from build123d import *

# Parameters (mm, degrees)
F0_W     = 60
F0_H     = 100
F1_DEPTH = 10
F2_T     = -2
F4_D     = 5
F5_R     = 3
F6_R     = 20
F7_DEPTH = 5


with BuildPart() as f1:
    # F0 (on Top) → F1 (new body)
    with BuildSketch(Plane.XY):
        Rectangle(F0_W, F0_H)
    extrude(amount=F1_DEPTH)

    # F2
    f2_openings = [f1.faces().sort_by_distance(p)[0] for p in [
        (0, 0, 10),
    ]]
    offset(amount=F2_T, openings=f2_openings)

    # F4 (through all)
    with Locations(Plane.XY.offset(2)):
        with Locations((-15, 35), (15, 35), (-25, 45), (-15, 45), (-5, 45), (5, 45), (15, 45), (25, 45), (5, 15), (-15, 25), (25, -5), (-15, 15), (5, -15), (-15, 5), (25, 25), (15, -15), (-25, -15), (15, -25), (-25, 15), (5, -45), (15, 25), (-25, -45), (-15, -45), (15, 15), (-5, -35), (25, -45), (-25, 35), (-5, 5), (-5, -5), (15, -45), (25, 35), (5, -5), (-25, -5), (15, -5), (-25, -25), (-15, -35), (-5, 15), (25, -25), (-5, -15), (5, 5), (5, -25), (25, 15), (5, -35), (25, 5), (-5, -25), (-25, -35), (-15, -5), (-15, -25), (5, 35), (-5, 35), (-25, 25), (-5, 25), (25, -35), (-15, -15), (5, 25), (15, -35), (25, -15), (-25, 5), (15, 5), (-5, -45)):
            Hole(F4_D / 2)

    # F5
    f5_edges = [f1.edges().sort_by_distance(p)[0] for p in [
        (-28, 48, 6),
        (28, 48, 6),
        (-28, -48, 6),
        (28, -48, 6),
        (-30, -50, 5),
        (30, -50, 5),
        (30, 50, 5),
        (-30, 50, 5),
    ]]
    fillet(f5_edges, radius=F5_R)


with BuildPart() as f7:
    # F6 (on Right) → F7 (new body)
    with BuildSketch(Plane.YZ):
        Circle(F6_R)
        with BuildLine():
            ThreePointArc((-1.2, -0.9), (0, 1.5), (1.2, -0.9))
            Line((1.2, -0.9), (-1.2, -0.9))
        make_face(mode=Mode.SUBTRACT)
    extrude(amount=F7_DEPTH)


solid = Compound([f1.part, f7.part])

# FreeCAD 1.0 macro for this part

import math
import FreeCAD as App
import Part
import Sketcher
from FreeCAD import Vector
Q = App.Units.Quantity


def edges_at(feature, points):
    """Names of the edges that pass closest to the given points."""
    edges = feature.Shape.Edges
    near = lambda p: min(range(len(edges)), key=lambda i: edges[i].distToShape(Part.Vertex(*p))[0])
    return sorted({f"Edge{near(p) + 1}" for p in points})


def faces_at(feature, points):
    """Names of the faces that lie closest to the given points."""
    faces = feature.Shape.Faces
    near = lambda p: min(range(len(faces)), key=lambda i: faces[i].distToShape(Part.Vertex(*p))[0])
    return sorted({f"Face{near(p) + 1}" for p in points})

doc = App.newDocument("Part")
body = doc.addObject("PartDesign::Body", "Body")

sketch1 = doc.addObject("Sketcher::SketchObject", "Sketch")
body.addObject(sketch1)
sketch1.AttachmentSupport = (doc.XY_Plane, [""])
sketch1.MapMode = "FlatFace"
sketch1.addGeometry([
    Part.LineSegment(Vector(-30, 50, 0), Vector(-30, -50, 0)),
    Part.LineSegment(Vector(-30, -50, 0), Vector(30, -50, 0)),
    Part.LineSegment(Vector(30, -50, 0), Vector(30, 50, 0)),
    Part.LineSegment(Vector(30, 50, 0), Vector(-30, 50, 0)),
], False)
sketch1.addConstraint([
    Sketcher.Constraint("Coincident", 0, 2, 1, 1),
    Sketcher.Constraint("Coincident", 1, 2, 2, 1),
    Sketcher.Constraint("Coincident", 2, 2, 3, 1),
    Sketcher.Constraint("Coincident", 3, 2, 0, 1),
    Sketcher.Constraint("Vertical", 0),
    Sketcher.Constraint("Horizontal", 1),
    Sketcher.Constraint("Vertical", 2),
    Sketcher.Constraint("Horizontal", 3),
    Sketcher.Constraint("Symmetric", 0, 2, 2, 2, -1, 1),
    Sketcher.Constraint("DistanceX", 1, 1, 1, 2, Q("60 mm")),
    Sketcher.Constraint("DistanceY", 0, 2, 0, 1, Q("100 mm")),
])
pad1 = doc.addObject("PartDesign::Pad", "Pad")
body.addObject(pad1)
pad1.Profile = sketch1
pad1.Length = 10
doc.recompute()

thickness = doc.addObject("PartDesign::Thickness", "Thickness")
body.addObject(thickness)
thickness.Base = (pad1, faces_at(pad1, [(0, 0, 10)]))
thickness.Value = 2
thickness.Reversed = True
thickness.Join = "Arc"

sketch2 = doc.addObject("Sketcher::SketchObject", "Sketch001")
body.addObject(sketch2)
sketch2.AttachmentSupport = (doc.XY_Plane, [""])
sketch2.MapMode = "FlatFace"
sketch2.AttachmentOffset = App.Placement(Vector(0, 0, 2), App.Rotation())
sketch2.addGeometry([
    Part.Circle(Vector(-15, 35, 0), Vector(0, 0, 1), 2.5),
    Part.Circle(Vector(15, 35, 0), Vector(0, 0, 1), 2.5),
    Part.Circle(Vector(-25, 45, 0), Vector(0, 0, 1), 2.5),
    Part.Circle(Vector(-15, 45, 0), Vector(0, 0, 1), 2.5),
    Part.Circle(Vector(-5, 45, 0), Vector(0, 0, 1), 2.5),
    Part.Circle(Vector(5, 45, 0), Vector(0, 0, 1), 2.5),
    Part.Circle(Vector(15, 45, 0), Vector(0, 0, 1), 2.5),
    Part.Circle(Vector(25, 45, 0), Vector(0, 0, 1), 2.5),
    Part.Circle(Vector(5, 15, 0), Vector(0, 0, 1), 2.5),
    Part.Circle(Vector(-15, 25, 0), Vector(0, 0, 1), 2.5),
    Part.Circle(Vector(25, -5, 0), Vector(0, 0, 1), 2.5),
    Part.Circle(Vector(-15, 15, 0), Vector(0, 0, 1), 2.5),
    Part.Circle(Vector(5, -15, 0), Vector(0, 0, 1), 2.5),
    Part.Circle(Vector(-15, 5, 0), Vector(0, 0, 1), 2.5),
    Part.Circle(Vector(25, 25, 0), Vector(0, 0, 1), 2.5),
    Part.Circle(Vector(15, -15, 0), Vector(0, 0, 1), 2.5),
    Part.Circle(Vector(-25, -15, 0), Vector(0, 0, 1), 2.5),
    Part.Circle(Vector(15, -25, 0), Vector(0, 0, 1), 2.5),
    Part.Circle(Vector(-25, 15, 0), Vector(0, 0, 1), 2.5),
    Part.Circle(Vector(5, -45, 0), Vector(0, 0, 1), 2.5),
    Part.Circle(Vector(15, 25, 0), Vector(0, 0, 1), 2.5),
    Part.Circle(Vector(-25, -45, 0), Vector(0, 0, 1), 2.5),
    Part.Circle(Vector(-15, -45, 0), Vector(0, 0, 1), 2.5),
    Part.Circle(Vector(15, 15, 0), Vector(0, 0, 1), 2.5),
    Part.Circle(Vector(-5, -35, 0), Vector(0, 0, 1), 2.5),
    Part.Circle(Vector(25, -45, 0), Vector(0, 0, 1), 2.5),
    Part.Circle(Vector(-25, 35, 0), Vector(0, 0, 1), 2.5),
    Part.Circle(Vector(-5, 5, 0), Vector(0, 0, 1), 2.5),
    Part.Circle(Vector(-5, -5, 0), Vector(0, 0, 1), 2.5),
    Part.Circle(Vector(15, -45, 0), Vector(0, 0, 1), 2.5),
    Part.Circle(Vector(25, 35, 0), Vector(0, 0, 1), 2.5),
    Part.Circle(Vector(5, -5, 0), Vector(0, 0, 1), 2.5),
    Part.Circle(Vector(-25, -5, 0), Vector(0, 0, 1), 2.5),
    Part.Circle(Vector(15, -5, 0), Vector(0, 0, 1), 2.5),
    Part.Circle(Vector(-25, -25, 0), Vector(0, 0, 1), 2.5),
    Part.Circle(Vector(-15, -35, 0), Vector(0, 0, 1), 2.5),
    Part.Circle(Vector(-5, 15, 0), Vector(0, 0, 1), 2.5),
    Part.Circle(Vector(25, -25, 0), Vector(0, 0, 1), 2.5),
    Part.Circle(Vector(-5, -15, 0), Vector(0, 0, 1), 2.5),
    Part.Circle(Vector(5, 5, 0), Vector(0, 0, 1), 2.5),
    Part.Circle(Vector(5, -25, 0), Vector(0, 0, 1), 2.5),
    Part.Circle(Vector(25, 15, 0), Vector(0, 0, 1), 2.5),
    Part.Circle(Vector(5, -35, 0), Vector(0, 0, 1), 2.5),
    Part.Circle(Vector(25, 5, 0), Vector(0, 0, 1), 2.5),
    Part.Circle(Vector(-5, -25, 0), Vector(0, 0, 1), 2.5),
    Part.Circle(Vector(-25, -35, 0), Vector(0, 0, 1), 2.5),
    Part.Circle(Vector(-15, -5, 0), Vector(0, 0, 1), 2.5),
    Part.Circle(Vector(-15, -25, 0), Vector(0, 0, 1), 2.5),
    Part.Circle(Vector(5, 35, 0), Vector(0, 0, 1), 2.5),
    Part.Circle(Vector(-5, 35, 0), Vector(0, 0, 1), 2.5),
    Part.Circle(Vector(-25, 25, 0), Vector(0, 0, 1), 2.5),
    Part.Circle(Vector(-5, 25, 0), Vector(0, 0, 1), 2.5),
    Part.Circle(Vector(25, -35, 0), Vector(0, 0, 1), 2.5),
    Part.Circle(Vector(-15, -15, 0), Vector(0, 0, 1), 2.5),
    Part.Circle(Vector(5, 25, 0), Vector(0, 0, 1), 2.5),
    Part.Circle(Vector(15, -35, 0), Vector(0, 0, 1), 2.5),
    Part.Circle(Vector(25, -15, 0), Vector(0, 0, 1), 2.5),
    Part.Circle(Vector(-25, 5, 0), Vector(0, 0, 1), 2.5),
    Part.Circle(Vector(15, 5, 0), Vector(0, 0, 1), 2.5),
    Part.Circle(Vector(-5, -45, 0), Vector(0, 0, 1), 2.5),
], False)
sketch2.addConstraint([
    Sketcher.Constraint("Equal", 0, 1),
    Sketcher.Constraint("Equal", 1, 2),
    Sketcher.Constraint("Equal", 2, 3),
    Sketcher.Constraint("Equal", 3, 4),
    Sketcher.Constraint("Equal", 4, 5),
    Sketcher.Constraint("Equal", 5, 6),
    Sketcher.Constraint("Equal", 6, 7),
    Sketcher.Constraint("Equal", 7, 8),
    Sketcher.Constraint("Equal", 8, 9),
    Sketcher.Constraint("Equal", 9, 10),
    Sketcher.Constraint("Equal", 10, 11),
    Sketcher.Constraint("Equal", 11, 12),
    Sketcher.Constraint("Equal", 12, 13),
    Sketcher.Constraint("Equal", 13, 14),
    Sketcher.Constraint("Equal", 14, 15),
    Sketcher.Constraint("Equal", 15, 16),
    Sketcher.Constraint("Equal", 16, 17),
    Sketcher.Constraint("Equal", 17, 18),
    Sketcher.Constraint("Equal", 18, 19),
    Sketcher.Constraint("Equal", 19, 20),
    Sketcher.Constraint("Equal", 20, 21),
    Sketcher.Constraint("Equal", 21, 22),
    Sketcher.Constraint("Equal", 22, 23),
    Sketcher.Constraint("Equal", 23, 24),
    Sketcher.Constraint("Equal", 24, 25),
    Sketcher.Constraint("Equal", 25, 26),
    Sketcher.Constraint("Equal", 26, 27),
    Sketcher.Constraint("Equal", 27, 28),
    Sketcher.Constraint("Equal", 28, 29),
    Sketcher.Constraint("Equal", 29, 30),
    Sketcher.Constraint("Equal", 30, 31),
    Sketcher.Constraint("Equal", 31, 32),
    Sketcher.Constraint("Equal", 32, 33),
    Sketcher.Constraint("Equal", 33, 34),
    Sketcher.Constraint("Equal", 34, 35),
    Sketcher.Constraint("Equal", 35, 36),
    Sketcher.Constraint("Equal", 36, 37),
    Sketcher.Constraint("Equal", 37, 38),
    Sketcher.Constraint("Equal", 38, 39),
    Sketcher.Constraint("Equal", 39, 40),
    Sketcher.Constraint("Equal", 40, 41),
    Sketcher.Constraint("Equal", 41, 42),
    Sketcher.Constraint("Equal", 42, 43),
    Sketcher.Constraint("Equal", 43, 44),
    Sketcher.Constraint("Equal", 44, 45),
    Sketcher.Constraint("Equal", 45, 46),
    Sketcher.Constraint("Equal", 46, 47),
    Sketcher.Constraint("Equal", 47, 48),
    Sketcher.Constraint("Equal", 48, 49),
    Sketcher.Constraint("Equal", 49, 50),
    Sketcher.Constraint("Equal", 50, 51),
    Sketcher.Constraint("Equal", 51, 52),
    Sketcher.Constraint("Equal", 52, 53),
    Sketcher.Constraint("Equal", 53, 54),
    Sketcher.Constraint("Equal", 54, 55),
    Sketcher.Constraint("Equal", 55, 56),
    Sketcher.Constraint("Equal", 56, 57),
    Sketcher.Constraint("Equal", 57, 58),
    Sketcher.Constraint("Equal", 58, 59),
    Sketcher.Constraint("Symmetric", 11, 3, 15, 3, -1, 1),
    Sketcher.Constraint("Symmetric", 9, 3, 17, 3, -1, 1),
    Sketcher.Constraint("Symmetric", 4, 3, 19, 3, -1, 1),
    Sketcher.Constraint("Symmetric", 7, 3, 21, 3, -1, 1),
    Sketcher.Constraint("Symmetric", 6, 3, 22, 3, -1, 1),
    Sketcher.Constraint("Symmetric", 2, 3, 25, 3, -1, 1),
    Sketcher.Constraint("Symmetric", 3, 3, 29, 3, -1, 1),
    Sketcher.Constraint("Symmetric", 27, 3, 31, 3, -1, 1),
    Sketcher.Constraint("Symmetric", 13, 3, 33, 3, -1, 1),
    Sketcher.Constraint("Symmetric", 14, 3, 34, 3, -1, 1),
    Sketcher.Constraint("Symmetric", 1, 3, 35, 3, -1, 1),
    Sketcher.Constraint("Symmetric", 12, 3, 36, 3, -1, 1),
    Sketcher.Constraint("Symmetric", 8, 3, 38, 3, -1, 1),
    Sketcher.Constraint("Symmetric", 28, 3, 39, 3, -1, 1),
    Sketcher.Constraint("Symmetric", 16, 3, 41, 3, -1, 1),
    Sketcher.Constraint("Symmetric", 32, 3, 43, 3, -1, 1),
    Sketcher.Constraint("Symmetric", 30, 3, 45, 3, -1, 1),
    Sketcher.Constraint("Symmetric", 20, 3, 47, 3, -1, 1),
    Sketcher.Constraint("Symmetric", 24, 3, 48, 3, -1, 1),
    Sketcher.Constraint("Symmetric", 42, 3, 49, 3, -1, 1),
    Sketcher.Constraint("Symmetric", 37, 3, 50, 3, -1, 1),
    Sketcher.Constraint("Symmetric", 40, 3, 51, 3, -1, 1),
    Sketcher.Constraint("Symmetric", 26, 3, 52, 3, -1, 1),
    Sketcher.Constraint("Symmetric", 23, 3, 53, 3, -1, 1),
    Sketcher.Constraint("Symmetric", 44, 3, 54, 3, -1, 1),
    Sketcher.Constraint("Symmetric", 0, 3, 55, 3, -1, 1),
    Sketcher.Constraint("Symmetric", 18, 3, 56, 3, -1, 1),
    Sketcher.Constraint("Symmetric", 10, 3, 57, 3, -1, 1),
    Sketcher.Constraint("Symmetric", 46, 3, 58, 3, -1, 1),
    Sketcher.Constraint("Symmetric", 5, 3, 59, 3, -1, 1),
    Sketcher.Constraint("Symmetric", 0, 3, 1, 3, -2),
    Sketcher.Constraint("Symmetric", 4, 3, 5, 3, -2),
    Sketcher.Constraint("Symmetric", 3, 3, 6, 3, -2),
    Sketcher.Constraint("Symmetric", 2, 3, 7, 3, -2),
    Sketcher.Constraint("Symmetric", 9, 3, 20, 3, -2),
    Sketcher.Constraint("Symmetric", 11, 3, 23, 3, -2),
    Sketcher.Constraint("Symmetric", 26, 3, 30, 3, -2),
    Sketcher.Constraint("Symmetric", 28, 3, 31, 3, -2),
    Sketcher.Constraint("Symmetric", 10, 3, 32, 3, -2),
    Sketcher.Constraint("Symmetric", 8, 3, 36, 3, -2),
    Sketcher.Constraint("Symmetric", 34, 3, 37, 3, -2),
    Sketcher.Constraint("Symmetric", 18, 3, 41, 3, -2),
    Sketcher.Constraint("Symmetric", 24, 3, 42, 3, -2),
    Sketcher.Constraint("Symmetric", 40, 3, 44, 3, -2),
    Sketcher.Constraint("Symmetric", 33, 3, 46, 3, -2),
    Sketcher.Constraint("Horizontal", 2, 3, 3, 3),
    Sketcher.Constraint("Horizontal", 3, 3, 4, 3),
    Sketcher.Constraint("Horizontal", 8, 3, 11, 3),
    Sketcher.Constraint("Horizontal", 9, 3, 14, 3),
    Sketcher.Constraint("Horizontal", 15, 3, 16, 3),
    Sketcher.Constraint("Horizontal", 1, 3, 26, 3),
    Sketcher.Constraint("Horizontal", 13, 3, 27, 3),
    Sketcher.Constraint("Horizontal", 10, 3, 28, 3),
    Sketcher.Constraint("Horizontal", 24, 3, 35, 3),
    Sketcher.Constraint("Horizontal", 37, 3, 40, 3),
    Sketcher.Constraint("Vertical", 0, 3, 3, 3),
    Sketcher.Constraint("Vertical", 5, 3, 8, 3),
    Sketcher.Constraint("Vertical", 3, 3, 9, 3),
    Sketcher.Constraint("Vertical", 7, 3, 10, 3),
    Sketcher.Constraint("Vertical", 9, 3, 11, 3),
    Sketcher.Constraint("Vertical", 11, 3, 13, 3),
    Sketcher.Constraint("Vertical", 10, 3, 14, 3),
    Sketcher.Constraint("Vertical", 2, 3, 16, 3),
    Sketcher.Constraint("Vertical", 4, 3, 24, 3),
    Sketcher.Constraint("Vertical", 21, 3, 26, 3),
    Sketcher.Constraint("Vertical", 24, 3, 27, 3),
    Sketcher.Constraint("Vertical", 39, 3, 40, 3),
    Sketcher.Constraint("Diameter", 0, Q("5 mm")),
    Sketcher.Constraint("DistanceX", 0, 3, -1, 1, Q("15 mm")),
    Sketcher.Constraint("DistanceY", -1, 1, 0, 3, Q("35 mm")),
    Sketcher.Constraint("DistanceX", 2, 3, -1, 1, Q("25 mm")),
    Sketcher.Constraint("DistanceY", -1, 1, 2, 3, Q("45 mm")),
    Sketcher.Constraint("DistanceX", 4, 3, -1, 1, Q("5 mm")),
    Sketcher.Constraint("DistanceY", -1, 1, 8, 3, Q("15 mm")),
    Sketcher.Constraint("DistanceY", -1, 1, 9, 3, Q("25 mm")),
    Sketcher.Constraint("DistanceY", 10, 3, -1, 1, Q("5 mm")),
])
doc.recompute()
hole = doc.addObject("PartDesign::Hole", "Hole")
body.addObject(hole)
hole.Profile = sketch2
hole.ThreadType = "None"
hole.Diameter = 5
hole.DepthType = "ThroughAll"
doc.recompute()

fillet = doc.addObject("PartDesign::Fillet", "Fillet")
body.addObject(fillet)
fillet.Base = (hole, edges_at(hole, [
    (-28, 48, 6),
    (28, 48, 6),
    (-28, -48, 6),
    (28, -48, 6),
    (-30, -50, 5),
    (30, -50, 5),
    (30, 50, 5),
    (-30, 50, 5),
]))
fillet.Radius = 3
body2 = doc.addObject("PartDesign::Body", "Body001")

sketch3 = doc.addObject("Sketcher::SketchObject", "Sketch002")
body2.addObject(sketch3)
sketch3.AttachmentSupport = (doc.getObject("YZ_Plane001"), [""])
sketch3.MapMode = "FlatFace"
sketch3.addGeometry([
    Part.Circle(Vector(0, 0, 0), Vector(0, 0, 1), 20),
    Part.LineSegment(Vector(1.2, -0.9, 0), Vector(-1.2, -0.9, 0)),
    Part.ArcOfCircle(Part.Circle(Vector(0, 0, 0), Vector(0, 0, 1), 1.5), math.radians(-37), math.radians(217)),
], False)
sketch3.addConstraint([
    Sketcher.Constraint("Coincident", 1, 1, 2, 1),
    Sketcher.Constraint("Coincident", 2, 2, 1, 2),
    Sketcher.Constraint("Horizontal", 1),
    Sketcher.Constraint("Coincident", 0, 3, -1, 1),
    Sketcher.Constraint("Coincident", 2, 3, -1, 1),
    Sketcher.Constraint("Diameter", 0, Q("40 mm")),
    Sketcher.Constraint("Radius", 2, Q("1.5 mm")),
    Sketcher.Constraint("DistanceX", 1, 2, 1, 1, Q("2.4 mm")),
])
pad2 = doc.addObject("PartDesign::Pad", "Pad001")
body2.addObject(pad2)
pad2.Profile = sketch3
pad2.Length = 5

doc.recompute()
